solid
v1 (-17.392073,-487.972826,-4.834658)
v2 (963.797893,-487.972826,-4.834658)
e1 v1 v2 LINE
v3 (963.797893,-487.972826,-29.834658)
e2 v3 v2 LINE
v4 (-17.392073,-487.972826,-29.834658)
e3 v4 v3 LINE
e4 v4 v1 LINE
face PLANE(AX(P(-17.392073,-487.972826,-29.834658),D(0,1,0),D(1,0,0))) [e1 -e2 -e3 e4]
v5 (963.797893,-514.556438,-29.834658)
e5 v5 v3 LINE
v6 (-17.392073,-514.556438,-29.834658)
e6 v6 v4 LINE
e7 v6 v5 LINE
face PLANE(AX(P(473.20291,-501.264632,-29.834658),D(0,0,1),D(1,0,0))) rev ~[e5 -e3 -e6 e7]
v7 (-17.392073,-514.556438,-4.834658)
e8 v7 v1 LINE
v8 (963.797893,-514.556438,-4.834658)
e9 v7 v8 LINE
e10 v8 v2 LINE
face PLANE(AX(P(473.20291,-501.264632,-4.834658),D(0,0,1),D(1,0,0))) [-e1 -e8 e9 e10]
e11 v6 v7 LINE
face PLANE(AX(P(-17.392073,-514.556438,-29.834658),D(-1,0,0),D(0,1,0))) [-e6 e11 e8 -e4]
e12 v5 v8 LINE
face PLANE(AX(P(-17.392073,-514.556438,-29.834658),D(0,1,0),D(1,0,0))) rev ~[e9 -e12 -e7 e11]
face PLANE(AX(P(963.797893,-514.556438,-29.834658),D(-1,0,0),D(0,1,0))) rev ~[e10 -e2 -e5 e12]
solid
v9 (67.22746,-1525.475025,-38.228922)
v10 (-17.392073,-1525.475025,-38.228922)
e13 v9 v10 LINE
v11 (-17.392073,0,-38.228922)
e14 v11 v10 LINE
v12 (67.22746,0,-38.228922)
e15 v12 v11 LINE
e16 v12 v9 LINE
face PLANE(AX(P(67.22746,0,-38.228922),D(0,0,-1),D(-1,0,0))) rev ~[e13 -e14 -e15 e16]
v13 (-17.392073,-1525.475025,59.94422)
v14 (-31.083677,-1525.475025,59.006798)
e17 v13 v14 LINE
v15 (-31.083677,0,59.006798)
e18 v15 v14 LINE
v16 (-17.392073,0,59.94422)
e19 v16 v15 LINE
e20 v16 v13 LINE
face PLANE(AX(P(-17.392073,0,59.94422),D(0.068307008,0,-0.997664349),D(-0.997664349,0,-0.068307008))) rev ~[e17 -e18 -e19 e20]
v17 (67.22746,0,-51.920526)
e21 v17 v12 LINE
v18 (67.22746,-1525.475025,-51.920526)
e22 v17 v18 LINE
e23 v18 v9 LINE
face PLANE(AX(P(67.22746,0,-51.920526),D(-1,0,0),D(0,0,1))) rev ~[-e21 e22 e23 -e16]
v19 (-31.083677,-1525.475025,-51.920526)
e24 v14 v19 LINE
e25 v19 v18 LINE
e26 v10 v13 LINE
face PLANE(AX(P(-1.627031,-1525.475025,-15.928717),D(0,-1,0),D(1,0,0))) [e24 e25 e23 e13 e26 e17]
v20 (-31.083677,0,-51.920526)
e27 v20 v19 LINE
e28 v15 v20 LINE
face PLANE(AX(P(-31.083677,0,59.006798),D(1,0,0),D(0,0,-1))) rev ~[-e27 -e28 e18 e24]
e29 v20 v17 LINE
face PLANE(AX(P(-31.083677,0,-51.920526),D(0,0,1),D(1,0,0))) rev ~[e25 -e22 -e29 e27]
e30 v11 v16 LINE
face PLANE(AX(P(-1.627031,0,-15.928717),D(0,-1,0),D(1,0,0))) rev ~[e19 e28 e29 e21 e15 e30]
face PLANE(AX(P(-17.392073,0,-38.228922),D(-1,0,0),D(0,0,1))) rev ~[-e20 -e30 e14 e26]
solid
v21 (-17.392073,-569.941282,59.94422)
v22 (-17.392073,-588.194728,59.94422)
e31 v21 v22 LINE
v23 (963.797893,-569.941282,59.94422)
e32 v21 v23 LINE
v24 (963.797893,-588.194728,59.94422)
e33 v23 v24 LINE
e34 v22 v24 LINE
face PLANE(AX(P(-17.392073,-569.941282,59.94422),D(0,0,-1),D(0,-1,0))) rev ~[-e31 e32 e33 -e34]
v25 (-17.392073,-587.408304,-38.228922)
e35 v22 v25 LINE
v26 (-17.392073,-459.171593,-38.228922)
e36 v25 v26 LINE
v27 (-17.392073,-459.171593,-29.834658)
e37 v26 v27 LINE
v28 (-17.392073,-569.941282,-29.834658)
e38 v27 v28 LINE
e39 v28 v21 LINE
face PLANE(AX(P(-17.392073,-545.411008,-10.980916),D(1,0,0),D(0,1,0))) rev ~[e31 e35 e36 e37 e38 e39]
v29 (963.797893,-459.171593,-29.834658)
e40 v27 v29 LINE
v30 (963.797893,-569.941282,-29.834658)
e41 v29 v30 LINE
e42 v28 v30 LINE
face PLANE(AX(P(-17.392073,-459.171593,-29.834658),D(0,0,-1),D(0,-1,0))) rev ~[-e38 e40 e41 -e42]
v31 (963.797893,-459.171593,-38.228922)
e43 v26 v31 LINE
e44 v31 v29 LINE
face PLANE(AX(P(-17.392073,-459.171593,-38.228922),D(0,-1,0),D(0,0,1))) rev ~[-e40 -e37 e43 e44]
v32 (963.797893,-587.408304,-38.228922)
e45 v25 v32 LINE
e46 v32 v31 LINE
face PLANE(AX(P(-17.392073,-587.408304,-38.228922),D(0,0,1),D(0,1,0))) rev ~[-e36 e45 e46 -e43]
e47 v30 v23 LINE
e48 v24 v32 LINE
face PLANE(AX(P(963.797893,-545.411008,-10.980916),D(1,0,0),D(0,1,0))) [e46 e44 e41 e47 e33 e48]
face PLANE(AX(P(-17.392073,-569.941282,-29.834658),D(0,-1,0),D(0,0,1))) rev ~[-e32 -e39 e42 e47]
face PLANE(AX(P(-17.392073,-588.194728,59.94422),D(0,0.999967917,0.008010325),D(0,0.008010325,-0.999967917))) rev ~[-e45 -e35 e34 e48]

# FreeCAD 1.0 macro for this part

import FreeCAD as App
import Part
import Sketcher

doc = App.newDocument("Part")
body = doc.addObject("PartDesign::Body", "Body")

# Sketch on XZ plane
sketch1 = doc.addObject("Sketcher::SketchObject", "Sketch")
body.addObject(sketch1)
sketch1.AttachmentSupport = (doc.XZ_Plane, [""])
sketch1.MapMode = "FlatFace"
sketch1.addGeometry(Part.LineSegment(App.Vector(-17, 60, 0), App.Vector(-31, 59, 0)), False)
sketch1.addGeometry(Part.LineSegment(App.Vector(-31, 59, 0), App.Vector(-31, -52, 0)), False)
sketch1.addGeometry(Part.LineSegment(App.Vector(-31, -52, 0), App.Vector(67, -52, 0)), False)
sketch1.addGeometry(Part.LineSegment(App.Vector(67, -52, 0), App.Vector(67, -38, 0)), False)
sketch1.addGeometry(Part.LineSegment(App.Vector(67, -38, 0), App.Vector(-17, -38, 0)), False)
sketch1.addGeometry(Part.LineSegment(App.Vector(-17, -38, 0), App.Vector(-17, 60, 0)), False)
sketch1.addConstraint(Sketcher.Constraint("Coincident", 0, 2, 1, 1))
sketch1.addConstraint(Sketcher.Constraint("Coincident", 1, 2, 2, 1))
sketch1.addConstraint(Sketcher.Constraint("Coincident", 2, 2, 3, 1))
sketch1.addConstraint(Sketcher.Constraint("Coincident", 3, 2, 4, 1))
sketch1.addConstraint(Sketcher.Constraint("Coincident", 4, 2, 5, 1))
sketch1.addConstraint(Sketcher.Constraint("Coincident", 5, 2, 0, 1))
sketch1.addConstraint(Sketcher.Constraint("Vertical", 1))
sketch1.addConstraint(Sketcher.Constraint("Horizontal", 2))
sketch1.addConstraint(Sketcher.Constraint("Vertical", 3))
sketch1.addConstraint(Sketcher.Constraint("Horizontal", 4))
sketch1.addConstraint(Sketcher.Constraint("Vertical", 5))
sketch1.addConstraint(Sketcher.Constraint("DistanceY", 5, 1, 5, 2, 98.173142))
sketch1.addConstraint(Sketcher.Constraint("DistanceY", -1, 1, 0, 2, 59.006798))
sketch1.addConstraint(Sketcher.Constraint("DistanceX", 2, 1, 2, 2, 98.311137))
sketch1.addConstraint(Sketcher.Constraint("DistanceX", 4, 2, 4, 1, 84.619533))
sketch1.addConstraint(Sketcher.Constraint("DistanceY", 1, 2, 1, 1, 110.927324))
sketch1.addConstraint(Sketcher.Constraint("DistanceY", 3, 1, 3, 2, 13.691604))
sketch1.addConstraint(Sketcher.Constraint("DistanceX", -1, 1, 2, 2, 67.22746))
pad1 = doc.addObject("PartDesign::Pad", "Pad")
body.addObject(pad1)
pad1.Profile = sketch1
pad1.Length = 1525.475025
body2 = doc.addObject("PartDesign::Body", "Body001")

# Sketch on YZ plane
sketch2 = doc.addObject("Sketcher::SketchObject", "Sketch001")
body2.addObject(sketch2)
sketch2.AttachmentSupport = (doc.getObject("YZ_Plane001"), [""])
sketch2.MapMode = "FlatFace"
sketch2.AttachmentOffset = App.Placement(App.Vector(0, 0, -17.392073), App.Rotation())
sketch2.addGeometry(Part.LineSegment(App.Vector(-570, 60, 0), App.Vector(-588, 60, 0)), False)
sketch2.addGeometry(Part.LineSegment(App.Vector(-588, 60, 0), App.Vector(-587, -38, 0)), False)
sketch2.addGeometry(Part.LineSegment(App.Vector(-587, -38, 0), App.Vector(-459, -38, 0)), False)
sketch2.addGeometry(Part.LineSegment(App.Vector(-459, -38, 0), App.Vector(-459, -30, 0)), False)
sketch2.addGeometry(Part.LineSegment(App.Vector(-459, -30, 0), App.Vector(-570, -30, 0)), False)
sketch2.addGeometry(Part.LineSegment(App.Vector(-570, -30, 0), App.Vector(-570, 60, 0)), False)
sketch2.addConstraint(Sketcher.Constraint("Coincident", 0, 2, 1, 1))
sketch2.addConstraint(Sketcher.Constraint("Coincident", 1, 2, 2, 1))
sketch2.addConstraint(Sketcher.Constraint("Coincident", 2, 2, 3, 1))
sketch2.addConstraint(Sketcher.Constraint("Coincident", 3, 2, 4, 1))
sketch2.addConstraint(Sketcher.Constraint("Coincident", 4, 2, 5, 1))
sketch2.addConstraint(Sketcher.Constraint("Coincident", 5, 2, 0, 1))
sketch2.addConstraint(Sketcher.Constraint("Horizontal", 0))
sketch2.addConstraint(Sketcher.Constraint("Horizontal", 2))
sketch2.addConstraint(Sketcher.Constraint("Vertical", 3))
sketch2.addConstraint(Sketcher.Constraint("Horizontal", 4))
sketch2.addConstraint(Sketcher.Constraint("Vertical", 5))
sketch2.addConstraint(Sketcher.Constraint("DistanceX", 2, 1, 2, 2, 128.236711))
sketch2.addConstraint(Sketcher.Constraint("DistanceX", 4, 2, 4, 1, 110.769689))
sketch2.addConstraint(Sketcher.Constraint("DistanceY", 5, 1, 5, 2, 89.778878))
sketch2.addConstraint(Sketcher.Constraint("Distance", 1, 98.176292))
sketch2.addConstraint(Sketcher.Constraint("DistanceX", 0, 2, 0, 1, 18.253446))
sketch2.addConstraint(Sketcher.Constraint("DistanceX", 0, 2, -1, 1, 588.194728))
sketch2.addConstraint(Sketcher.Constraint("DistanceY", -1, 1, 0, 2, 59.94422))
pad2 = doc.addObject("PartDesign::Pad", "Pad001")
body2.addObject(pad2)
pad2.Profile = sketch2
pad2.Length = 981.189966
body3 = doc.addObject("PartDesign::Body", "Body002")

# Sketch on XY plane
sketch3 = doc.addObject("Sketcher::SketchObject", "Sketch002")
body3.addObject(sketch3)
sketch3.AttachmentSupport = (doc.getObject("XY_Plane002"), [""])
sketch3.MapMode = "FlatFace"
sketch3.AttachmentOffset = App.Placement(App.Vector(0, 0, -29.834658), App.Rotation())
sketch3.addGeometry(Part.LineSegment(App.Vector(-17, -488, 0), App.Vector(-17, -515, 0)), False)
sketch3.addGeometry(Part.LineSegment(App.Vector(-17, -515, 0), App.Vector(964, -515, 0)), False)
sketch3.addGeometry(Part.LineSegment(App.Vector(964, -515, 0), App.Vector(964, -488, 0)), False)
sketch3.addGeometry(Part.LineSegment(App.Vector(964, -488, 0), App.Vector(-17, -488, 0)), False)
sketch3.addConstraint(Sketcher.Constraint("Coincident", 0, 2, 1, 1))
sketch3.addConstraint(Sketcher.Constraint("Coincident", 1, 2, 2, 1))
sketch3.addConstraint(Sketcher.Constraint("Coincident", 2, 2, 3, 1))
sketch3.addConstraint(Sketcher.Constraint("Coincident", 3, 2, 0, 1))
sketch3.addConstraint(Sketcher.Constraint("Vertical", 0))
sketch3.addConstraint(Sketcher.Constraint("Horizontal", 1))
sketch3.addConstraint(Sketcher.Constraint("Vertical", 2))
sketch3.addConstraint(Sketcher.Constraint("Horizontal", 3))
sketch3.addConstraint(Sketcher.Constraint("DistanceY", 0, 2, 0, 1, 26.583612))
sketch3.addConstraint(Sketcher.Constraint("DistanceX", 1, 1, 1, 2, 981.189966))
sketch3.addConstraint(Sketcher.Constraint("DistanceY", 0, 2, -1, 1, 514.556438))
sketch3.addConstraint(Sketcher.Constraint("DistanceX", 0, 2, -1, 1, 17.392073))
pad3 = doc.addObject("PartDesign::Pad", "Pad002")
body3.addObject(pad3)
pad3.Profile = sketch3
pad3.Length = 25

doc.recompute()
